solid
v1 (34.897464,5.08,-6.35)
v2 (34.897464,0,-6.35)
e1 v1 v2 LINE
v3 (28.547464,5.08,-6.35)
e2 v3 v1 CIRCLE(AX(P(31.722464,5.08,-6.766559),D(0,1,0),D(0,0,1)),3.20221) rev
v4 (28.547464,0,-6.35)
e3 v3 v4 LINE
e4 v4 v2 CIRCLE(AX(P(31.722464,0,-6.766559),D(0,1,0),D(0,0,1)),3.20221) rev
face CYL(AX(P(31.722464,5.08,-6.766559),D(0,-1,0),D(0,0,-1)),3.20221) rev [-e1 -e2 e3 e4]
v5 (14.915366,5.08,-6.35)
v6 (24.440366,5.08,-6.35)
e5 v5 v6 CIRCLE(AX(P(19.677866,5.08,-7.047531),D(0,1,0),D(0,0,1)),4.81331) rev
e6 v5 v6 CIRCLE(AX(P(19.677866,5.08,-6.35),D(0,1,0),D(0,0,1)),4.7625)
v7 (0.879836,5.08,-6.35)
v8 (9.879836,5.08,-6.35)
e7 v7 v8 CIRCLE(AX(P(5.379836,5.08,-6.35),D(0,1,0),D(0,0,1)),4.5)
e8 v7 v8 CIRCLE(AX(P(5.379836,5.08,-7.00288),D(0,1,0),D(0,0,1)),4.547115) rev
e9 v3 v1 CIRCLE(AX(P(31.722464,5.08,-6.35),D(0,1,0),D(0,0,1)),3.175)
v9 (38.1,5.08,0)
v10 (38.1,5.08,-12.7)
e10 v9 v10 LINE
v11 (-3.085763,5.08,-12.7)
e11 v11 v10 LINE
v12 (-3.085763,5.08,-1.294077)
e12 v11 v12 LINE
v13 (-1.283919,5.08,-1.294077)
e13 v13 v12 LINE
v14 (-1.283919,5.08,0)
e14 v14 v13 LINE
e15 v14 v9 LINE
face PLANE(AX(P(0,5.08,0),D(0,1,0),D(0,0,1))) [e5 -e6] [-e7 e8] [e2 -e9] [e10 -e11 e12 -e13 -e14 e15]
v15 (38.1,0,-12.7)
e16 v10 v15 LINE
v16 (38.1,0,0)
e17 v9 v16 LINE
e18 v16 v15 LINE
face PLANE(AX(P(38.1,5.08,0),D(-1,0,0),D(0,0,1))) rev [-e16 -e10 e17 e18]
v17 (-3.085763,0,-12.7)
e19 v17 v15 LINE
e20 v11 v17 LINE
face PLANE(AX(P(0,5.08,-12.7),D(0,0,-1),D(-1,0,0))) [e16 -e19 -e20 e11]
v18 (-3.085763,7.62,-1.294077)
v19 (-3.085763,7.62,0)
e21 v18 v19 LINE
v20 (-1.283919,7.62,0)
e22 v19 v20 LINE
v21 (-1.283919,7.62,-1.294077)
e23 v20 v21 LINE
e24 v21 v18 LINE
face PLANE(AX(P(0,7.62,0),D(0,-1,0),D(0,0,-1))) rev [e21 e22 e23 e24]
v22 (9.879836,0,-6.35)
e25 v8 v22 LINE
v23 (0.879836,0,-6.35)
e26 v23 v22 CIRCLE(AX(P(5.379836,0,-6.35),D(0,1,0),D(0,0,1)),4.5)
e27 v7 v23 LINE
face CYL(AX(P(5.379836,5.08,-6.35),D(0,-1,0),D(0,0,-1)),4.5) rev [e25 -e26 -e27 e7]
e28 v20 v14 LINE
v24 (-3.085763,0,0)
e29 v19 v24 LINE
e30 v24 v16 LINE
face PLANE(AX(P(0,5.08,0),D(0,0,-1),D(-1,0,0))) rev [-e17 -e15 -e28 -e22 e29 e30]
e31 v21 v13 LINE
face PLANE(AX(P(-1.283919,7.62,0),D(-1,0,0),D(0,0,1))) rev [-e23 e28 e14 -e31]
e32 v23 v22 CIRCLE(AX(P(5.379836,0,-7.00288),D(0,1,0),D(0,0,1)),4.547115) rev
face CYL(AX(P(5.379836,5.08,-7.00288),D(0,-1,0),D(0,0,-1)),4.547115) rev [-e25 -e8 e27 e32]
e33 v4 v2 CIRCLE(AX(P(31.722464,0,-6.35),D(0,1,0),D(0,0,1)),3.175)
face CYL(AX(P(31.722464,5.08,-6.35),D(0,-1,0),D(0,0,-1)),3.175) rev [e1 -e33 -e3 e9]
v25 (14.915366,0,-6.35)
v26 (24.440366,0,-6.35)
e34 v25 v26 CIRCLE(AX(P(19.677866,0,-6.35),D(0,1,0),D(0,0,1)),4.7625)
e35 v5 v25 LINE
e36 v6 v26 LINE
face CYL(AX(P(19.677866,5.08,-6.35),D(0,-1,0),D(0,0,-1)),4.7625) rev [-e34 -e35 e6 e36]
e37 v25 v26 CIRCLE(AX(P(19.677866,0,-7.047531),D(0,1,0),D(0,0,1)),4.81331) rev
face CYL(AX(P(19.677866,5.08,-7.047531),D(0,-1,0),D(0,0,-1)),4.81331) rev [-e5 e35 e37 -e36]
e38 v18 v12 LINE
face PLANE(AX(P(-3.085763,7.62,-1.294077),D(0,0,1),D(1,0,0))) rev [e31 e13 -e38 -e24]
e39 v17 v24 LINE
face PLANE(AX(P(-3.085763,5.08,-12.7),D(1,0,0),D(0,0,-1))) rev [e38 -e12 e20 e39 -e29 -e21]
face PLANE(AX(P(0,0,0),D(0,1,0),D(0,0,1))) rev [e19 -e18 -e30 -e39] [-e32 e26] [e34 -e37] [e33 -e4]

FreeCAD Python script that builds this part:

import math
import FreeCAD as App
import Part
import Sketcher
Q = App.Units.Quantity


def add_polygon(sketch, points):
    """Adds a closed chain of lines whose ends are joined by coincident constraints."""
    first, n = sketch.GeometryCount, len(points)
    for a, b in zip(points, points[1:] + points[:1]):
        sketch.addGeometry(Part.LineSegment(App.Vector(*a, 0), App.Vector(*b, 0)), False)
    for i in range(n):
        sketch.addConstraint(Sketcher.Constraint("Coincident", first + i, 2, first + (i + 1) % n, 1))

doc = App.newDocument("Part")
params = doc.addObject("Spreadsheet::Sheet", "Params")
for row, (alias, value) in enumerate([
    ("sketch1_height", "0.5 in"),
    ("sketch1_radius", "0.125 in"),
    ("sketch1_radius2", "0.1875 in"),
    ("pad1_length", "0.2 in"),
    ("pad2_length", "0.1 in"),
], start=1):
    params.set(f"A{row}", alias)
    params.set(f"B{row}", "=" + value)
    params.setAlias(f"B{row}", alias)

body = doc.addObject("PartDesign::Body", "Body")

sketch1 = doc.addObject("Sketcher::SketchObject", "Sketch")
body.addObject(sketch1)
sketch1.AttachmentSupport = (doc.XZ_Plane, [""])
sketch1.MapMode = "FlatFace"
add_polygon(sketch1, [(-3.085763, -12.7), (-3.085763, 0), (38.1, 0), (38.1, -12.7)])
sketch1.addGeometry(Part.ArcOfCircle(Part.Circle(App.Vector(5.379836, -6.35, 0), App.Vector(0, 0, 1), 4.5), math.radians(0), math.radians(180)), False)
sketch1.addGeometry(Part.ArcOfCircle(Part.Circle(App.Vector(5.379836, -7.00288, 0), App.Vector(0, 0, 1), 4.547115), math.radians(171.744874), math.radians(368.255126)), False)
sketch1.addGeometry(Part.ArcOfCircle(Part.Circle(App.Vector(31.722464, -6.35, 0), App.Vector(0, 0, 1), 3.175), math.radians(0), math.radians(180)), False)
sketch1.addGeometry(Part.ArcOfCircle(Part.Circle(App.Vector(31.722464, -6.766559, 0), App.Vector(0, 0, 1), 3.20221), math.radians(172.525497), math.radians(367.474503)), False)
sketch1.addGeometry(Part.ArcOfCircle(Part.Circle(App.Vector(19.677866, -6.35, 0), App.Vector(0, 0, 1), 4.7625), math.radians(0), math.radians(180)), False)
sketch1.addGeometry(Part.ArcOfCircle(Part.Circle(App.Vector(19.677866, -7.047531, 0), App.Vector(0, 0, 1), 4.81331), math.radians(171.667526), math.radians(368.332474)), False)
sketch1.addConstraint(Sketcher.Constraint("Coincident", 4, 1, 5, 2))
sketch1.addConstraint(Sketcher.Constraint("Coincident", 5, 1, 4, 2))
sketch1.addConstraint(Sketcher.Constraint("Coincident", 6, 1, 7, 2))
sketch1.addConstraint(Sketcher.Constraint("Coincident", 7, 1, 6, 2))
sketch1.addConstraint(Sketcher.Constraint("Coincident", 8, 1, 9, 2))
sketch1.addConstraint(Sketcher.Constraint("Coincident", 9, 1, 8, 2))
sketch1.addConstraint(Sketcher.Constraint("Vertical", 0))
sketch1.addConstraint(Sketcher.Constraint("Horizontal", 1))
sketch1.addConstraint(Sketcher.Constraint("Vertical", 2))
sketch1.addConstraint(Sketcher.Constraint("Horizontal", 3))
sketch1.addConstraint(Sketcher.Constraint("PointOnObject", 0, 2, -1))
sketch1.addConstraint(Sketcher.Constraint("Horizontal", 4, 3, 6, 3))
sketch1.addConstraint(Sketcher.Constraint("Horizontal", 6, 3, 8, 3))
sketch1.addConstraint(Sketcher.Constraint("Horizontal", 8, 3, 4, 1))
sketch1.addConstraint(Sketcher.Constraint("Horizontal", 4, 1, 5, 1))
sketch1.addConstraint(Sketcher.Constraint("Horizontal", 5, 1, 6, 1))
sketch1.addConstraint(Sketcher.Constraint("Horizontal", 6, 1, 7, 1))
sketch1.addConstraint(Sketcher.Constraint("Horizontal", 7, 1, 8, 1))
sketch1.addConstraint(Sketcher.Constraint("Horizontal", 8, 1, 9, 1))
sketch1.addConstraint(Sketcher.Constraint("DistanceY", 0, 1, 0, 2, Q("0.5 in")))
sketch1.addConstraint(Sketcher.Constraint("Radius", 6, Q("0.125 in")))
sketch1.addConstraint(Sketcher.Constraint("Radius", 8, Q("0.1875 in")))
sketch1.addConstraint(Sketcher.Constraint("DistanceX", -1, 1, 1, 2, Q("1.5 in")))
sketch1.addConstraint(Sketcher.Constraint("DistanceY", 4, 3, -1, 1, Q("0.25 in")))
sketch1.addConstraint(Sketcher.Constraint("Radius", 4, Q("4.5 mm")))
sketch1.addConstraint(Sketcher.Constraint("Radius", 7, Q("3.20221 mm")))
sketch1.addConstraint(Sketcher.Constraint("Radius", 9, Q("4.81331 mm")))
sketch1.addConstraint(Sketcher.Constraint("Radius", 5, Q("4.547115 mm")))
sketch1.addConstraint(Sketcher.Constraint("DistanceX", 0, 2, 4, 3, Q("8.465599 mm")))
sketch1.addConstraint(Sketcher.Constraint("DistanceX", 1, 1, 1, 2, Q("41.185763 mm")))
sketch1.addConstraint(Sketcher.Constraint("DistanceX", 4, 3, 8, 3, Q("14.29803 mm")))
sketch1.addConstraint(Sketcher.Constraint("DistanceX", -1, 1, 6, 3, Q("31.722464 mm")))
sketch1.setExpression("Constraints[23]", "Params.sketch1_height")
sketch1.setExpression("Constraints[24]", "Params.sketch1_radius")
sketch1.setExpression("Constraints[25]", "Params.sketch1_radius2")
pad1 = doc.addObject("PartDesign::Pad", "Pad")
body.addObject(pad1)
pad1.Profile = sketch1
pad1.setExpression("Length", "Params.pad1_length")
pad1.Reversed = True

sketch2 = doc.addObject("Sketcher::SketchObject", "Sketch001")
body.addObject(sketch2)
sketch2.AttachmentSupport = (doc.XZ_Plane, [""])
sketch2.MapMode = "FlatFace"
sketch2.AttachmentOffset = App.Placement(App.Vector(0, 0, -0.2 * 25.4), App.Rotation())
add_polygon(sketch2, [(-3.085763, -1.294077), (-3.085763, 0), (-1.283919, 0), (-1.283919, -1.294077)])
sketch2.addConstraint(Sketcher.Constraint("Vertical", 0))
sketch2.addConstraint(Sketcher.Constraint("Horizontal", 1))
sketch2.addConstraint(Sketcher.Constraint("Vertical", 2))
sketch2.addConstraint(Sketcher.Constraint("Horizontal", 3))
sketch2.addConstraint(Sketcher.Constraint("PointOnObject", 0, 2, -1))
sketch2.addConstraint(Sketcher.Constraint("DistanceX", 1, 1, 1, 2, Q("1.801844 mm")))
sketch2.addConstraint(Sketcher.Constraint("DistanceY", 0, 1, 0, 2, Q("1.294077 mm")))
sketch2.addConstraint(Sketcher.Constraint("DistanceX", 1, 2, -1, 1, Q("1.283919 mm")))
pad2 = doc.addObject("PartDesign::Pad", "Pad001")
body.addObject(pad2)
pad2.Profile = sketch2
pad2.setExpression("Length", "Params.pad2_length")
pad2.Reversed = True

doc.recompute()
